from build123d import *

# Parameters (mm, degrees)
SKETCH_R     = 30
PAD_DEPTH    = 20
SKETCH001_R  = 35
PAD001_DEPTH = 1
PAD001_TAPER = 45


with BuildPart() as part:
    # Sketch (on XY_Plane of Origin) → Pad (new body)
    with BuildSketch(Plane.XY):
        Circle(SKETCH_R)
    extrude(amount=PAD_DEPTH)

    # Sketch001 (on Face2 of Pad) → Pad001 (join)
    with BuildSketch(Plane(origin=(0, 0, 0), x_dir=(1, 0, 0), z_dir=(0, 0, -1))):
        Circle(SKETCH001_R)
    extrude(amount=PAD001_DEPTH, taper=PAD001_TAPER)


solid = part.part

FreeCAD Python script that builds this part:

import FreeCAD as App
import Part
import Sketcher
from FreeCAD import Vector
Q = App.Units.Quantity

doc = App.newDocument("Part")
params = doc.addObject("Spreadsheet::Sheet", "Params")
for row, (alias, value) in enumerate([
    ("sketch1_diameter", "60 mm"),
    ("pad1_length", "20 mm"),
    ("sketch2_diameter", "70 mm"),
    ("pad2_length", "1 mm"),
    ("pad2_taper", "-45 deg"),
], start=1):
    params.set(f"A{row}", alias)
    params.set(f"B{row}", "=" + value)
    params.setAlias(f"B{row}", alias)

body = doc.addObject("PartDesign::Body", "Body")

sketch1 = body.newObject("Sketcher::SketchObject", "Sketch")
sketch1.AttachmentSupport = (doc.getObject("XY_Plane"), [""])
sketch1.MapMode = "FlatFace"
sketch1.addGeometry(Part.Circle(Vector(0, 0, 0), Vector(0, 0, 1), 30), False)
sketch1.addConstraint(Sketcher.Constraint("Coincident", 0, 3, -1, 1))
sketch1.addConstraint(Sketcher.Constraint("Diameter", 0, Q("60 mm")))
sketch1.setExpression("Constraints[1]", "Params.sketch1_diameter")
pad1 = body.newObject("PartDesign::Pad", "Pad")
pad1.Profile = sketch1
pad1.setExpression("Length", "Params.pad1_length")

sketch2 = body.newObject("Sketcher::SketchObject", "Sketch001")
sketch2.AttachmentSupport = (doc.getObject("XY_Plane"), [""])
sketch2.MapMode = "FlatFace"
sketch2.addGeometry(Part.Circle(Vector(0, 0, 0), Vector(0, 0, 1), 35), False)
sketch2.addConstraint(Sketcher.Constraint("Coincident", 0, 3, -1, 1))
sketch2.addConstraint(Sketcher.Constraint("Diameter", 0, Q("70 mm")))
sketch2.setExpression("Constraints[1]", "Params.sketch2_diameter")
pad2 = body.newObject("PartDesign::Pad", "Pad001")
pad2.Profile = sketch2
pad2.setExpression("Length", "Params.pad2_length")
pad2.Reversed = True
pad2.setExpression("TaperAngle", "Params.pad2_taper")

doc.recompute()
